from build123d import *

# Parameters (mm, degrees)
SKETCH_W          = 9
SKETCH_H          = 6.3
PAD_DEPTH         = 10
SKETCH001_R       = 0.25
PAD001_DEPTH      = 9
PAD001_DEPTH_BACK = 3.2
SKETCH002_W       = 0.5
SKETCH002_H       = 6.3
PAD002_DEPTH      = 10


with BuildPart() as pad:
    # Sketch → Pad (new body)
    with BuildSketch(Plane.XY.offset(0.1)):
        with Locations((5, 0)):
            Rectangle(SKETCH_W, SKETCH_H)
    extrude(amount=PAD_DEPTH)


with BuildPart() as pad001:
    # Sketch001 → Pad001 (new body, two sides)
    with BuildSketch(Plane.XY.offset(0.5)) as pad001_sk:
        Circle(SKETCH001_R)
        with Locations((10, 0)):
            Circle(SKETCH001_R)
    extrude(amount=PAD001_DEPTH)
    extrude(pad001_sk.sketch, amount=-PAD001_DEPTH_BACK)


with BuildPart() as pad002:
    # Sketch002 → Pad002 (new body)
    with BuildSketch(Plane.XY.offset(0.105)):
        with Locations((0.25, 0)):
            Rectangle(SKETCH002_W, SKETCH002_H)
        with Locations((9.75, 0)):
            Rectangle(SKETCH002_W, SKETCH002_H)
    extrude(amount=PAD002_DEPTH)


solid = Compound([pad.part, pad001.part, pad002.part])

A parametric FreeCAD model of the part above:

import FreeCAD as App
import Part
import Sketcher
from FreeCAD import Vector

doc = App.newDocument("Part")
params = doc.addObject("Spreadsheet::Sheet", "Params")
for row, (alias, value) in enumerate([
    ("sketch1_width", "9 mm"),
    ("sketch1_height", "6.3 mm"),
    ("pad1_length", "10 mm"),
    ("sketch2_diameter", "0.5 mm"),
    ("pad2_length", "9 mm"),
    ("pad2_length2", "3.2 mm"),
    ("sketch3_width", "0.5 mm"),
    ("sketch3_height", "6.3 mm"),
    ("pad3_length", "10 mm"),
], start=1):
    params.set(f"A{row}", alias)
    params.set(f"B{row}", "=" + value)
    params.setAlias(f"B{row}", alias)

body = doc.addObject("PartDesign::Body", "Body")

# Sketch on XY plane
sketch1 = body.newObject("Sketcher::SketchObject", "Sketch")
sketch1.AttachmentSupport = (doc.getObject("XY_Plane"), [""])
sketch1.MapMode = "FlatFace"
sketch1.AttachmentOffset = App.Placement(Vector(0, 0, 0.1), App.Rotation())
sketch1.addGeometry(Part.LineSegment(Vector(0, 3, 0), Vector(0, -3, 0)), False)
sketch1.addGeometry(Part.LineSegment(Vector(0, -3, 0), Vector(10, -3, 0)), False)
sketch1.addGeometry(Part.LineSegment(Vector(10, -3, 0), Vector(10, 3, 0)), False)
sketch1.addGeometry(Part.LineSegment(Vector(10, 3, 0), Vector(0, 3, 0)), False)
sketch1.addConstraint(Sketcher.Constraint("Coincident", 0, 2, 1, 1))
sketch1.addConstraint(Sketcher.Constraint("Coincident", 1, 2, 2, 1))
sketch1.addConstraint(Sketcher.Constraint("Coincident", 2, 2, 3, 1))
sketch1.addConstraint(Sketcher.Constraint("Coincident", 3, 2, 0, 1))
sketch1.addConstraint(Sketcher.Constraint("Vertical", 0))
sketch1.addConstraint(Sketcher.Constraint("Horizontal", 1))
sketch1.addConstraint(Sketcher.Constraint("Vertical", 2))
sketch1.addConstraint(Sketcher.Constraint("Horizontal", 3))
sketch1.addConstraint(Sketcher.Constraint("DistanceX", 1, 1, 1, 2, 9.0))
sketch1.addConstraint(Sketcher.Constraint("DistanceY", 0, 2, 0, 1, 6.3))
sketch1.addConstraint(Sketcher.Constraint("DistanceX", -1, 1, 0, 2, 0.5))
sketch1.addConstraint(Sketcher.Constraint("DistanceY", 0, 2, -1, 1, 3.15))
sketch1.setExpression("Constraints[8]", "Params.sketch1_width")
sketch1.setExpression("Constraints[9]", "Params.sketch1_height")
pad1 = body.newObject("PartDesign::Pad", "Pad")
pad1.Profile = sketch1
pad1.setExpression("Length", "Params.pad1_length")
body2 = doc.addObject("PartDesign::Body", "Body001")
body2.AllowCompound = True

# Sketch on XY plane
sketch2 = body2.newObject("Sketcher::SketchObject", "Sketch001")
sketch2.AttachmentSupport = (doc.getObject("XY_Plane001"), [""])
sketch2.MapMode = "FlatFace"
sketch2.AttachmentOffset = App.Placement(Vector(0, 0, 0.5), App.Rotation())
sketch2.addGeometry(Part.Circle(Vector(0, 0, 0), Vector(0, 0, 1), 0.25), False)
sketch2.addGeometry(Part.Circle(Vector(10, 0, 0), Vector(0, 0, 1), 0.25), False)
sketch2.addConstraint(Sketcher.Constraint("Coincident", 0, 3, -1, 1))
sketch2.addConstraint(Sketcher.Constraint("Equal", 0, 1))
sketch2.addConstraint(Sketcher.Constraint("PointOnObject", 1, 3, -1))
sketch2.addConstraint(Sketcher.Constraint("Diameter", 0, 0.5))
sketch2.addConstraint(Sketcher.Constraint("DistanceX", -1, 1, 1, 3, 10.0))
sketch2.setExpression("Constraints[3]", "Params.sketch2_diameter")
pad2 = body2.newObject("PartDesign::Pad", "Pad001")
pad2.Profile = sketch2
pad2.Type = "TwoLengths"
pad2.setExpression("Length", "Params.pad2_length")
pad2.setExpression("Length2", "Params.pad2_length2")
body3 = doc.addObject("PartDesign::Body", "Body002")
body3.AllowCompound = True

# Sketch on XY plane
sketch3 = body3.newObject("Sketcher::SketchObject", "Sketch002")
sketch3.AttachmentSupport = (doc.getObject("XY_Plane002"), [""])
sketch3.MapMode = "FlatFace"
sketch3.AttachmentOffset = App.Placement(Vector(0, 0, 0.105), App.Rotation())
sketch3.addGeometry(Part.LineSegment(Vector(0, 3.1, 0), Vector(0, -3.1, 0)), False)
sketch3.addGeometry(Part.LineSegment(Vector(0, -3.1, 0), Vector(0.5, -3.1, 0)), False)
sketch3.addGeometry(Part.LineSegment(Vector(0.5, -3.1, 0), Vector(0.5, 3.1, 0)), False)
sketch3.addGeometry(Part.LineSegment(Vector(0.5, 3.1, 0), Vector(0, 3.1, 0)), False)
sketch3.addGeometry(Part.LineSegment(Vector(9.5, 3.1, 0), Vector(9.5, -3.1, 0)), False)
sketch3.addGeometry(Part.LineSegment(Vector(9.5, -3.1, 0), Vector(10, -3.1, 0)), False)
sketch3.addGeometry(Part.LineSegment(Vector(10, -3.1, 0), Vector(10, 3.1, 0)), False)
sketch3.addGeometry(Part.LineSegment(Vector(10, 3.1, 0), Vector(9.5, 3.1, 0)), False)
sketch3.addConstraint(Sketcher.Constraint("Coincident", 0, 2, 1, 1))
sketch3.addConstraint(Sketcher.Constraint("Coincident", 1, 2, 2, 1))
sketch3.addConstraint(Sketcher.Constraint("Coincident", 2, 2, 3, 1))
sketch3.addConstraint(Sketcher.Constraint("Coincident", 3, 2, 0, 1))
sketch3.addConstraint(Sketcher.Constraint("Coincident", 4, 2, 5, 1))
sketch3.addConstraint(Sketcher.Constraint("Coincident", 5, 2, 6, 1))
sketch3.addConstraint(Sketcher.Constraint("Coincident", 6, 2, 7, 1))
sketch3.addConstraint(Sketcher.Constraint("Coincident", 7, 2, 4, 1))
sketch3.addConstraint(Sketcher.Constraint("Vertical", 0))
sketch3.addConstraint(Sketcher.Constraint("Horizontal", 1))
sketch3.addConstraint(Sketcher.Constraint("Vertical", 2))
sketch3.addConstraint(Sketcher.Constraint("Horizontal", 3))
sketch3.addConstraint(Sketcher.Constraint("Vertical", 4))
sketch3.addConstraint(Sketcher.Constraint("Horizontal", 5))
sketch3.addConstraint(Sketcher.Constraint("Vertical", 6))
sketch3.addConstraint(Sketcher.Constraint("Horizontal", 7))
sketch3.addConstraint(Sketcher.Constraint("Symmetric", 0, 2, 3, 2, -1, 1))
sketch3.addConstraint(Sketcher.Constraint("Horizontal", 1, 2, 4, 2))
sketch3.addConstraint(Sketcher.Constraint("Horizontal", 3, 2, 6, 2))
sketch3.addConstraint(Sketcher.Constraint("Equal", 3, 5))
sketch3.addConstraint(Sketcher.Constraint("DistanceX", 1, 1, 1, 2, 0.5))
sketch3.addConstraint(Sketcher.Constraint("DistanceY", 0, 2, 0, 1, 6.3))
sketch3.addConstraint(Sketcher.Constraint("DistanceX", -1, 1, 5, 2, 10.0))
sketch3.setExpression("Constraints[20]", "Params.sketch3_width")
sketch3.setExpression("Constraints[21]", "Params.sketch3_height")
pad3 = body3.newObject("PartDesign::Pad", "Pad002")
pad3.Profile = sketch3
pad3.setExpression("Length", "Params.pad3_length")

doc.recompute()
